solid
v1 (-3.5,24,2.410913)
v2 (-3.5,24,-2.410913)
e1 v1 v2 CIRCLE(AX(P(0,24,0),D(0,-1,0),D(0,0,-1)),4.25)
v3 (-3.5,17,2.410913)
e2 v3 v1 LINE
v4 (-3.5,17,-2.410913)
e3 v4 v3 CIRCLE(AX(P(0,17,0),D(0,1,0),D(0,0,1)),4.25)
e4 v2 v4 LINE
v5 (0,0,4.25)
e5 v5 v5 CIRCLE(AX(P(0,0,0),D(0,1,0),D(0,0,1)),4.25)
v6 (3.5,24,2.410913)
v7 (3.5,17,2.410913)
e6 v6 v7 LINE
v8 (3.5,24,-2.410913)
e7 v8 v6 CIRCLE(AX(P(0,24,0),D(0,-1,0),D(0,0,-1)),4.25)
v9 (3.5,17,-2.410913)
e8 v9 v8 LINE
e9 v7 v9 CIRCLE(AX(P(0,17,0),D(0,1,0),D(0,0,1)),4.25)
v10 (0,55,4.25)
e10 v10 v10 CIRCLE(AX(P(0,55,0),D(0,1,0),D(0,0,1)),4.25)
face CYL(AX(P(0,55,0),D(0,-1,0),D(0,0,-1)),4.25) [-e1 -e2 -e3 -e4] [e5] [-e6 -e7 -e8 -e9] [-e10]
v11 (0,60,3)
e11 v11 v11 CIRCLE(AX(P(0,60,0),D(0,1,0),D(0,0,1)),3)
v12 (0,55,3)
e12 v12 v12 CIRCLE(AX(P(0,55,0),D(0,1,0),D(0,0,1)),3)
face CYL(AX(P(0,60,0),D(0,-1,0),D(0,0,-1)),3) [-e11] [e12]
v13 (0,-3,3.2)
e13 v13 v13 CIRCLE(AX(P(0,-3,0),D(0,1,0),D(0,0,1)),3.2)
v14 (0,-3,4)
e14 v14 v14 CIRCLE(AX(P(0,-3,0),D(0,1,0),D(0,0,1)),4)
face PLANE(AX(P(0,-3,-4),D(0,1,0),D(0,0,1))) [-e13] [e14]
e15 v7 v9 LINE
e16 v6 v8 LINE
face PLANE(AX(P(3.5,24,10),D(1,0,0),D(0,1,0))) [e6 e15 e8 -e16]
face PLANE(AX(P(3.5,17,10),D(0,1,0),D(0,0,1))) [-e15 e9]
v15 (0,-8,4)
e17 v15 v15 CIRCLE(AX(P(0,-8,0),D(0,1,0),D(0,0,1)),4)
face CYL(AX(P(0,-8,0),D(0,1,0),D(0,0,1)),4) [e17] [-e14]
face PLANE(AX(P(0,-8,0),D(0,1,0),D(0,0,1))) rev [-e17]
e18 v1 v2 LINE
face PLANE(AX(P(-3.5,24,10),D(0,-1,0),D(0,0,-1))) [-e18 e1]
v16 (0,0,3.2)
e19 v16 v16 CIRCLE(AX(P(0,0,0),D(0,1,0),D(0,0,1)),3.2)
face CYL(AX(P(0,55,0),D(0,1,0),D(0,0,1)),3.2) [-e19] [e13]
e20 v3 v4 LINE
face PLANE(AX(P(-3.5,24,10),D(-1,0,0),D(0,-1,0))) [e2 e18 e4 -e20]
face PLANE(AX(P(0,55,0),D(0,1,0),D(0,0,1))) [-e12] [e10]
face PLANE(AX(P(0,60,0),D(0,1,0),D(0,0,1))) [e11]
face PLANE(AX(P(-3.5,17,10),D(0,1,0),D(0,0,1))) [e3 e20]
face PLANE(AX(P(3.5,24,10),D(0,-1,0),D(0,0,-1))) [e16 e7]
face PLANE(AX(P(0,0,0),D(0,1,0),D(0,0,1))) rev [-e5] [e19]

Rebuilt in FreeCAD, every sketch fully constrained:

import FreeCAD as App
import Part
import Sketcher
from FreeCAD import Vector


def add_polygon(sketch, points):
    """Adds a closed chain of lines whose ends are joined by coincident constraints."""
    first, n = sketch.GeometryCount, len(points)
    for a, b in zip(points, points[1:] + points[:1]):
        sketch.addGeometry(Part.LineSegment(App.Vector(*a, 0), App.Vector(*b, 0)), False)
    for i in range(n):
        sketch.addConstraint(Sketcher.Constraint("Coincident", first + i, 2, first + (i + 1) % n, 1))

doc = App.newDocument("Part")
params = doc.addObject("Spreadsheet::Sheet", "Params")
for row, (alias, value) in enumerate([
    ("sketch1_diameter", "8.5 mm"),
    ("pad1_length", "55 mm"),
    ("sketch2_diameter", "6 mm"),
    ("pad2_length", "5 mm"),
    ("sketch3_height", "7 mm"),
    ("sketch3_width", "0.75 mm"),
    ("sketch4_diameter", "8 mm"),
    ("pad3_length", "8 mm"),
    ("sketch5_width", "3 mm"),
    ("sketch5_height", "0.8 mm"),
    ("groove_angle", "360 deg"),
], start=1):
    params.set(f"A{row}", alias)
    params.set(f"B{row}", "=" + value)
    params.setAlias(f"B{row}", alias)

body = doc.addObject("PartDesign::Body", "Body")

sketch1 = doc.addObject("Sketcher::SketchObject", "Sketch")
body.addObject(sketch1)
sketch1.AttachmentSupport = (doc.XZ_Plane, [""])
sketch1.MapMode = "FlatFace"
sketch1.addGeometry(Part.Circle(Vector(0, 0, 0), Vector(0, 0, 1), 4.2), False)
sketch1.addConstraint([
    Sketcher.Constraint("Coincident", 0, 3, -1, 1),
    Sketcher.Constraint("Diameter", 0, 8.5),
])
sketch1.setExpression("Constraints[1]", "Params.sketch1_diameter")
pad1 = doc.addObject("PartDesign::Pad", "Pad")
body.addObject(pad1)
pad1.Profile = sketch1
pad1.setExpression("Length", "Params.pad1_length")
pad1.Reversed = True

sketch2 = doc.addObject("Sketcher::SketchObject", "Sketch001")
body.addObject(sketch2)
sketch2.AttachmentSupport = (doc.XZ_Plane, [""])
sketch2.MapMode = "FlatFace"
sketch2.AttachmentOffset = App.Placement(Vector(0, 0, -55), App.Rotation())
sketch2.addGeometry(Part.Circle(Vector(0, 0, 0), Vector(0, 0, 1), 3), False)
sketch2.addConstraint([
    Sketcher.Constraint("Coincident", 0, 3, -1, 1),
    Sketcher.Constraint("Diameter", 0, 6.0),
])
sketch2.setExpression("Constraints[1]", "Params.sketch2_diameter")
pad2 = doc.addObject("PartDesign::Pad", "Pad001")
body.addObject(pad2)
pad2.Profile = sketch2
pad2.setExpression("Length", "Params.pad2_length")
pad2.Reversed = True

sketch3 = doc.addObject("Sketcher::SketchObject", "Sketch002")
body.addObject(sketch3)
sketch3.AttachmentSupport = (doc.XY_Plane, [""])
sketch3.MapMode = "FlatFace"
add_polygon(sketch3, [(-4.2, 24), (-4.2, 17), (-3.5, 17), (-3.5, 24)])
add_polygon(sketch3, [(3.5, 24), (3.5, 17), (4.2, 17), (4.2, 24)])
sketch3.addConstraint([
    Sketcher.Constraint("Vertical", 0),
    Sketcher.Constraint("Horizontal", 1),
    Sketcher.Constraint("Vertical", 2),
    Sketcher.Constraint("Horizontal", 3),
    Sketcher.Constraint("Vertical", 4),
    Sketcher.Constraint("Horizontal", 5),
    Sketcher.Constraint("Vertical", 6),
    Sketcher.Constraint("Horizontal", 7),
    Sketcher.Constraint("Symmetric", 1, 2, 4, 2, -2),
    Sketcher.Constraint("Symmetric", 3, 2, 6, 2, -2),
    Sketcher.Constraint("DistanceY", 0, 2, 0, 1, 7.0),
    Sketcher.Constraint("DistanceY", -1, 1, 0, 2, 17.0),
    Sketcher.Constraint("DistanceX", 1, 2, 4, 2, 7.0),
    Sketcher.Constraint("DistanceX", 1, 1, 1, 2, 0.75),
])
sketch3.setExpression("Constraints[18]", "Params.sketch3_height")
sketch3.setExpression("Constraints[21]", "Params.sketch3_width")
pocket1 = doc.addObject("PartDesign::Pocket", "Pocket")
body.addObject(pocket1)
pocket1.Profile = sketch3
pocket1.Type = "ThroughAll"
pocket1.Midplane = True

sketch4 = doc.addObject("Sketcher::SketchObject", "Sketch003")
body.addObject(sketch4)
sketch4.AttachmentSupport = (doc.XZ_Plane, [""])
sketch4.MapMode = "FlatFace"
sketch4.addGeometry(Part.Circle(Vector(0, 0, 0), Vector(0, 0, 1), 4), False)
sketch4.addConstraint([
    Sketcher.Constraint("Coincident", 0, 3, -1, 1),
    Sketcher.Constraint("Diameter", 0, 8.0),
])
sketch4.setExpression("Constraints[1]", "Params.sketch4_diameter")
pad3 = doc.addObject("PartDesign::Pad", "Pad002")
body.addObject(pad3)
pad3.Profile = sketch4
pad3.setExpression("Length", "Params.pad3_length")

sketch5 = doc.addObject("Sketcher::SketchObject", "Sketch004")
body.addObject(sketch5)
sketch5.AttachmentSupport = (doc.YZ_Plane, [""])
sketch5.MapMode = "FlatFace"
add_polygon(sketch5, [(0, -3.2), (-3, -3.2), (-3, -4), (0, -4)])
sketch5.addConstraint([
    Sketcher.Constraint("Horizontal", 0),
    Sketcher.Constraint("Vertical", 1),
    Sketcher.Constraint("Horizontal", 2),
    Sketcher.Constraint("Vertical", 3),
    Sketcher.Constraint("PointOnObject", 2, 2, -2),
    Sketcher.Constraint("DistanceX", 0, 2, 0, 1, 3.0),
    Sketcher.Constraint("DistanceY", 1, 2, 1, 1, 0.8),
    Sketcher.Constraint("DistanceY", 1, 2, -1, 1, 4.0),
])
sketch5.setExpression("Constraints[9]", "Params.sketch5_width")
sketch5.setExpression("Constraints[10]", "Params.sketch5_height")
groove = doc.addObject("PartDesign::Groove", "Groove")
body.addObject(groove)
groove.Profile = sketch5
groove.ReferenceAxis = (sketch5, ["H_Axis"])
groove.setExpression("Angle", "Params.groove_angle")

doc.recompute()
